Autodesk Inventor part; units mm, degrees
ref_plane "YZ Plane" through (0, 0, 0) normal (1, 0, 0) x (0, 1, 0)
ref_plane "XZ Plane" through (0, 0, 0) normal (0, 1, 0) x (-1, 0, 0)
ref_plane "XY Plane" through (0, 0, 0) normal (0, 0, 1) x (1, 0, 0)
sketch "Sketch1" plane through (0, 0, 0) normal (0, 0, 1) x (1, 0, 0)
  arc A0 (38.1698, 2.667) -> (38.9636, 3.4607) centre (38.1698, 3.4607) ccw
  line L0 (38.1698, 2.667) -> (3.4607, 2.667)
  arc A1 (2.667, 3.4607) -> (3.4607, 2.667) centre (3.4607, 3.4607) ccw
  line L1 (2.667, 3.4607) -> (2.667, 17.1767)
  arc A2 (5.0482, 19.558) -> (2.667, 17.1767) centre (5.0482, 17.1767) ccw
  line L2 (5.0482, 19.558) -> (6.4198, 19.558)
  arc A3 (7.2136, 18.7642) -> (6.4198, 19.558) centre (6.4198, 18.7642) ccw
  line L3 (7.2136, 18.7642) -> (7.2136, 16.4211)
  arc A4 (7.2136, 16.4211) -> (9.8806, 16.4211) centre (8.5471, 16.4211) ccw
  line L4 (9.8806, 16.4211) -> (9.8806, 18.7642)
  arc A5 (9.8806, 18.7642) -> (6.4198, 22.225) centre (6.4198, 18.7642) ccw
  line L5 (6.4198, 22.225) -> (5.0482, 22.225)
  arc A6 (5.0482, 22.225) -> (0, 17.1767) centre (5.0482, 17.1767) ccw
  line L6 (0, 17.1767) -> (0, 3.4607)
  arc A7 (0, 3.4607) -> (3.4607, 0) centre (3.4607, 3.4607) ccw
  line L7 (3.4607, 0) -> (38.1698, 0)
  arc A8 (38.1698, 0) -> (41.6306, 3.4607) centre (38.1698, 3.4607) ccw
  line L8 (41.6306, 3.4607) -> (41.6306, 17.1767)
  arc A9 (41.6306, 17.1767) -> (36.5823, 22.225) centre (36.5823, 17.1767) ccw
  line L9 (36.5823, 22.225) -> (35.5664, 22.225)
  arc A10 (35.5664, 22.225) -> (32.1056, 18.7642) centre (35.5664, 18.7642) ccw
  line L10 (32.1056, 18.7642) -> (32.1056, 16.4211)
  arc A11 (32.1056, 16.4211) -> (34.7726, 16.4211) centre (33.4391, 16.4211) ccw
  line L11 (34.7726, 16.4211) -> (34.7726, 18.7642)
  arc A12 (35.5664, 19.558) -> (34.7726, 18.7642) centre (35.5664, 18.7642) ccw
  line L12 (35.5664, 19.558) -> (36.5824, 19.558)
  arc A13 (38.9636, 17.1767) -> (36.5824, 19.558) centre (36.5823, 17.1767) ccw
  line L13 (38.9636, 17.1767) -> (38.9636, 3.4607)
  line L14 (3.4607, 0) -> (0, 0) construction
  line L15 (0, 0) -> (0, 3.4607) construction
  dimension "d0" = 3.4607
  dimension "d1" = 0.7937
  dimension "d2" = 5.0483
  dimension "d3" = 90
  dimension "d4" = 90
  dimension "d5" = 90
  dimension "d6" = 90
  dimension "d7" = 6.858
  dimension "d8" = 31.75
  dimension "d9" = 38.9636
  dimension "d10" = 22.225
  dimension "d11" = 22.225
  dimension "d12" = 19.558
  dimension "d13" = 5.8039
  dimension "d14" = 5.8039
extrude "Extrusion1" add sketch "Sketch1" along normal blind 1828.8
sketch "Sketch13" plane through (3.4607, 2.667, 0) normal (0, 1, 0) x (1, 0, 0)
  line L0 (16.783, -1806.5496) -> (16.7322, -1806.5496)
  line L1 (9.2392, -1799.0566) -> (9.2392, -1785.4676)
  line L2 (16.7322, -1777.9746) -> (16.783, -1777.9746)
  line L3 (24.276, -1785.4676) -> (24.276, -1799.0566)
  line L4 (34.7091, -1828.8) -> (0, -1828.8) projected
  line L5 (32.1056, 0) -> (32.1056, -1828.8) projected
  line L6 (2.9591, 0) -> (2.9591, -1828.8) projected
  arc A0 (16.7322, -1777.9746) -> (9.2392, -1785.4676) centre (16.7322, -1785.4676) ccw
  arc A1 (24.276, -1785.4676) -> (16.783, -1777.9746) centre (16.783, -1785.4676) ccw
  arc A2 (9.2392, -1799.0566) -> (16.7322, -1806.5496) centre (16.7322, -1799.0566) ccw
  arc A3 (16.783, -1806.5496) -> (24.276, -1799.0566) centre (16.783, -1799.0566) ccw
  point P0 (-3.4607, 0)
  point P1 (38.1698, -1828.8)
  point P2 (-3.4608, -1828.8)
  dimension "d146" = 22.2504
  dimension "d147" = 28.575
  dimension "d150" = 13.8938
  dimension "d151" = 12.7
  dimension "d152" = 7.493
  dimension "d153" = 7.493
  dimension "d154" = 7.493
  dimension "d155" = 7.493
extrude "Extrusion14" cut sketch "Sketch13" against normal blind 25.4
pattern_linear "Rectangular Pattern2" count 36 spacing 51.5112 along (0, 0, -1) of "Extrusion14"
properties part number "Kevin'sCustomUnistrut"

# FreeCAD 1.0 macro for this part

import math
import FreeCAD as App
import Part
import Sketcher

V = App.Vector
Q = App.Units.Quantity

doc = App.newDocument("Part")
body = doc.addObject("PartDesign::Body", "Body")

sketch1 = body.newObject("Sketcher::SketchObject", "Sketch")
sketch1.AttachmentSupport = (doc.getObject("XY_Plane"), [""])
sketch1.MapMode = "FlatFace"
sketch1.addGeometry([
    Part.ArcOfCircle(Part.Circle(V(38.1698, 3.4607, 0), V(0, 0, 1), 0.7937), math.radians(-90), math.radians(0)),
    Part.LineSegment(V(38.1698, 2.667, 0), V(3.4607, 2.667, 0)),
    Part.ArcOfCircle(Part.Circle(V(3.4607, 3.4607, 0), V(0, 0, 1), 0.7937), math.radians(180), math.radians(270)),
    Part.LineSegment(V(2.667, 3.4607, 0), V(2.667, 17.1767, 0)),
    Part.ArcOfCircle(Part.Circle(V(5.0482, 17.1767, 0), V(0, 0, 1), 2.3813), math.radians(90), math.radians(180)),
    Part.LineSegment(V(5.0482, 19.558, 0), V(6.4198, 19.558, 0)),
    Part.ArcOfCircle(Part.Circle(V(6.4198, 18.7642, 0), V(0, 0, 1), 0.7938), math.radians(0), math.radians(90)),
    Part.LineSegment(V(7.2136, 18.7642, 0), V(7.2136, 16.4211, 0)),
    Part.ArcOfCircle(Part.Circle(V(8.5471, 16.4211, 0), V(0, 0, 1), 1.3335), math.radians(180), math.radians(360)),
    Part.LineSegment(V(9.8806, 16.4211, 0), V(9.8806, 18.7642, 0)),
    Part.ArcOfCircle(Part.Circle(V(6.4198, 18.7642, 0), V(0, 0, 1), 3.4608), math.radians(0), math.radians(90)),
    Part.LineSegment(V(6.4198, 22.225, 0), V(5.0482, 22.225, 0)),
    Part.ArcOfCircle(Part.Circle(V(5.0482, 17.1767, 0), V(0, 0, 1), 5.0483), math.radians(90), math.radians(180)),
    Part.LineSegment(V(0, 17.1767, 0), V(0, 3.4607, 0)),
    Part.ArcOfCircle(Part.Circle(V(3.4607, 3.4607, 0), V(0, 0, 1), 3.4607), math.radians(180), math.radians(270)),
    Part.LineSegment(V(3.4607, 0, 0), V(38.1698, 0, 0)),
    Part.ArcOfCircle(Part.Circle(V(38.1698, 3.4607, 0), V(0, 0, 1), 3.4607), math.radians(-90), math.radians(0)),
    Part.LineSegment(V(41.6306, 3.4607, 0), V(41.6306, 17.1767, 0)),
    Part.ArcOfCircle(Part.Circle(V(36.5823, 17.1767, 0), V(0, 0, 1), 5.0483), math.radians(0), math.radians(90)),
    Part.LineSegment(V(36.5823, 22.225, 0), V(35.5664, 22.225, 0)),
    Part.ArcOfCircle(Part.Circle(V(35.5664, 18.7642, 0), V(0, 0, 1), 3.4608), math.radians(90), math.radians(180)),
    Part.LineSegment(V(32.1056, 18.7642, 0), V(32.1056, 16.4211, 0)),
    Part.ArcOfCircle(Part.Circle(V(33.4391, 16.4211, 0), V(0, 0, 1), 1.3335), math.radians(180), math.radians(360)),
    Part.LineSegment(V(34.7726, 16.4211, 0), V(34.7726, 18.7642, 0)),
    Part.ArcOfCircle(Part.Circle(V(35.5664, 18.7642, 0), V(0, 0, 1), 0.7938), math.radians(90), math.radians(180)),
    Part.LineSegment(V(35.5664, 19.558, 0), V(36.5824, 19.558, 0)),
    Part.ArcOfCircle(Part.Circle(V(36.5823, 17.1767, 0), V(0, 0, 1), 2.3813), math.radians(0), math.radians(89.997594)),
    Part.LineSegment(V(38.9636, 17.1767, 0), V(38.9636, 3.4607, 0)),
], False)
sketch1.addConstraint([
    Sketcher.Constraint("Tangent", 0, 1, 1, 1),
    Sketcher.Constraint("Tangent", 1, 2, 2, 2),
    Sketcher.Constraint("Tangent", 2, 1, 3, 1),
    Sketcher.Constraint("Tangent", 3, 2, 4, 2),
    Sketcher.Constraint("Tangent", 4, 1, 5, 1),
    Sketcher.Constraint("Tangent", 5, 2, 6, 2),
    Sketcher.Constraint("Tangent", 6, 1, 7, 1),
    Sketcher.Constraint("Tangent", 7, 2, 8, 1),
    Sketcher.Constraint("Tangent", 8, 2, 9, 1),
    Sketcher.Constraint("Tangent", 9, 2, 10, 1),
    Sketcher.Constraint("Tangent", 10, 2, 11, 1),
    Sketcher.Constraint("Tangent", 11, 2, 12, 1),
    Sketcher.Constraint("Tangent", 12, 2, 13, 1),
    Sketcher.Constraint("Tangent", 13, 2, 14, 1),
    Sketcher.Constraint("Tangent", 14, 2, 15, 1),
    Sketcher.Constraint("Tangent", 15, 2, 16, 1),
    Sketcher.Constraint("Tangent", 16, 2, 17, 1),
    Sketcher.Constraint("Tangent", 17, 2, 18, 1),
    Sketcher.Constraint("Tangent", 18, 2, 19, 1),
    Sketcher.Constraint("Tangent", 19, 2, 20, 1),
    Sketcher.Constraint("Tangent", 20, 2, 21, 1),
    Sketcher.Constraint("Tangent", 21, 2, 22, 1),
    Sketcher.Constraint("Tangent", 22, 2, 23, 1),
    Sketcher.Constraint("Tangent", 23, 2, 24, 2),
    Sketcher.Constraint("Tangent", 24, 1, 25, 1),
    Sketcher.Constraint("Tangent", 25, 2, 26, 2),
    Sketcher.Constraint("Tangent", 26, 1, 27, 1),
    Sketcher.Constraint("Tangent", 27, 2, 0, 2),
    Sketcher.Constraint("Horizontal", 1),
    Sketcher.Constraint("Vertical", 3),
    Sketcher.Constraint("Horizontal", 5),
    Sketcher.Constraint("Vertical", 7),
    Sketcher.Constraint("Vertical", 9),
    Sketcher.Constraint("Horizontal", 11),
    Sketcher.Constraint("Vertical", 13),
    Sketcher.Constraint("Horizontal", 15),
    Sketcher.Constraint("Vertical", 17),
    Sketcher.Constraint("Horizontal", 19),
    Sketcher.Constraint("Vertical", 21),
    Sketcher.Constraint("Vertical", 23),
    Sketcher.Constraint("Horizontal", 25),
    Sketcher.Constraint("Vertical", 27),
    Sketcher.Constraint("Coincident", 10, 3, 6, 3),
    Sketcher.Constraint("Coincident", 12, 3, 4, 3),
    Sketcher.Constraint("Coincident", 14, 3, 2, 3),
    Sketcher.Constraint("Coincident", 16, 3, 0, 3),
    Sketcher.Constraint("Coincident", 24, 3, 20, 3),
    Sketcher.Constraint("Coincident", 26, 3, 18, 3),
    Sketcher.Constraint("Equal", 0, 2),
    Sketcher.Constraint("Equal", 2, 6),
    Sketcher.Constraint("Equal", 12, 18),
    Sketcher.Constraint("Equal", 16, 20),
    Sketcher.Constraint("PointOnObject", 12, 2, -2),
    Sketcher.Constraint("PointOnObject", 14, 2, -1),
    Sketcher.Constraint("Horizontal", 12, 3, 18, 3),
    Sketcher.Constraint("Horizontal", 8, 3, 22, 3),
    Sketcher.Constraint("Radius", 0, Q("0.031248 in")),
    Sketcher.Constraint("DistanceY", -1, 1, 4, 1, Q("0.77 in")),
    Sketcher.Constraint("Radius", 10, Q("3.4608 mm")),
    Sketcher.Constraint("Radius", 12, Q("5.0483 mm")),
    Sketcher.Constraint("DistanceX", 6, 3, 0, 3, Q("1.25 in")),
    Sketcher.Constraint("DistanceX", -1, 1, 26, 1, Q("1.534 in")),
    Sketcher.Constraint("DistanceX", 19, 2, 19, 1, Q("0.04 in")),
    Sketcher.Constraint("DistanceY", 22, 3, 18, 2, Q("0.2285 in")),
])
pad1 = body.newObject("PartDesign::Pad", "Pad")
pad1.Profile = sketch1
pad1.Length = Q("72 in")

sketch2 = body.newObject("Sketcher::SketchObject", "Sketch001")
sketch2.AttachmentSupport = (doc.getObject("XZ_Plane"), [""])
sketch2.MapMode = "FlatFace"
sketch2.AttachmentOffset = App.Placement(V(0, 0, -0.105 * 25.4), App.Rotation())
sketch2.addGeometry([
    Part.LineSegment(V(20.1929, 1806.5496, 0), V(20.2437, 1806.5496, 0)),
    Part.ArcOfCircle(Part.Circle(V(20.2437, 1799.0566, 0), V(0, 0, 1), 7.493), math.radians(0), math.radians(90)),
    Part.LineSegment(V(27.7367, 1799.0566, 0), V(27.7367, 1785.4676, 0)),
    Part.ArcOfCircle(Part.Circle(V(20.2437, 1785.4676, 0), V(0, 0, 1), 7.493), math.radians(-90), math.radians(0)),
    Part.LineSegment(V(20.2437, 1777.9746, 0), V(20.1929, 1777.9746, 0)),
    Part.ArcOfCircle(Part.Circle(V(20.1929, 1785.4676, 0), V(0, 0, 1), 7.493), math.radians(180), math.radians(270)),
    Part.LineSegment(V(12.6999, 1785.4676, 0), V(12.6999, 1799.0566, 0)),
    Part.ArcOfCircle(Part.Circle(V(20.1929, 1799.0566, 0), V(0, 0, 1), 7.493), math.radians(90), math.radians(180)),
], False)
sketch2.addConstraint([
    Sketcher.Constraint("Tangent", 0, 2, 1, 2),
    Sketcher.Constraint("Tangent", 1, 1, 2, 1),
    Sketcher.Constraint("Tangent", 2, 2, 3, 2),
    Sketcher.Constraint("Tangent", 3, 1, 4, 1),
    Sketcher.Constraint("Tangent", 4, 2, 5, 2),
    Sketcher.Constraint("Tangent", 5, 1, 6, 1),
    Sketcher.Constraint("Tangent", 6, 2, 7, 2),
    Sketcher.Constraint("Tangent", 7, 1, 0, 1),
    Sketcher.Constraint("Horizontal", 0),
    Sketcher.Constraint("Vertical", 2),
    Sketcher.Constraint("Horizontal", 4),
    Sketcher.Constraint("Vertical", 6),
    Sketcher.Constraint("Equal", 1, 3),
    Sketcher.Constraint("Equal", 3, 5),
    Sketcher.Constraint("Equal", 5, 7),
    Sketcher.Constraint("Radius", 1, Q("0.295 in")),
    Sketcher.Constraint("DistanceX", -1, 1, 5, 1, Q("0.5 in")),
    Sketcher.Constraint("DistanceX", 0, 1, 0, 2, Q("0.002 in")),
    Sketcher.Constraint("DistanceY", 2, 2, 2, 1, Q("0.535 in")),
    Sketcher.Constraint("DistanceY", -1, 1, 1, 3, Q("70.829 in")),
])
pocket1 = body.newObject("PartDesign::Pocket", "Pocket")
pocket1.Profile = sketch2
pocket1.Length = Q("1 in")
pocket1.Reversed = True
doc.recompute()

linearpattern = body.newObject("PartDesign::LinearPattern", "LinearPattern")
linearpattern.Originals = [pocket1]
linearpattern.Direction = (doc.getObject("Z_Axis"), [""])
linearpattern.Mode = "offset"
linearpattern.Offset = Q("2.028 in")
linearpattern.Occurrences = 36
linearpattern.Reversed = True
body.Tip = linearpattern

doc.recompute()
